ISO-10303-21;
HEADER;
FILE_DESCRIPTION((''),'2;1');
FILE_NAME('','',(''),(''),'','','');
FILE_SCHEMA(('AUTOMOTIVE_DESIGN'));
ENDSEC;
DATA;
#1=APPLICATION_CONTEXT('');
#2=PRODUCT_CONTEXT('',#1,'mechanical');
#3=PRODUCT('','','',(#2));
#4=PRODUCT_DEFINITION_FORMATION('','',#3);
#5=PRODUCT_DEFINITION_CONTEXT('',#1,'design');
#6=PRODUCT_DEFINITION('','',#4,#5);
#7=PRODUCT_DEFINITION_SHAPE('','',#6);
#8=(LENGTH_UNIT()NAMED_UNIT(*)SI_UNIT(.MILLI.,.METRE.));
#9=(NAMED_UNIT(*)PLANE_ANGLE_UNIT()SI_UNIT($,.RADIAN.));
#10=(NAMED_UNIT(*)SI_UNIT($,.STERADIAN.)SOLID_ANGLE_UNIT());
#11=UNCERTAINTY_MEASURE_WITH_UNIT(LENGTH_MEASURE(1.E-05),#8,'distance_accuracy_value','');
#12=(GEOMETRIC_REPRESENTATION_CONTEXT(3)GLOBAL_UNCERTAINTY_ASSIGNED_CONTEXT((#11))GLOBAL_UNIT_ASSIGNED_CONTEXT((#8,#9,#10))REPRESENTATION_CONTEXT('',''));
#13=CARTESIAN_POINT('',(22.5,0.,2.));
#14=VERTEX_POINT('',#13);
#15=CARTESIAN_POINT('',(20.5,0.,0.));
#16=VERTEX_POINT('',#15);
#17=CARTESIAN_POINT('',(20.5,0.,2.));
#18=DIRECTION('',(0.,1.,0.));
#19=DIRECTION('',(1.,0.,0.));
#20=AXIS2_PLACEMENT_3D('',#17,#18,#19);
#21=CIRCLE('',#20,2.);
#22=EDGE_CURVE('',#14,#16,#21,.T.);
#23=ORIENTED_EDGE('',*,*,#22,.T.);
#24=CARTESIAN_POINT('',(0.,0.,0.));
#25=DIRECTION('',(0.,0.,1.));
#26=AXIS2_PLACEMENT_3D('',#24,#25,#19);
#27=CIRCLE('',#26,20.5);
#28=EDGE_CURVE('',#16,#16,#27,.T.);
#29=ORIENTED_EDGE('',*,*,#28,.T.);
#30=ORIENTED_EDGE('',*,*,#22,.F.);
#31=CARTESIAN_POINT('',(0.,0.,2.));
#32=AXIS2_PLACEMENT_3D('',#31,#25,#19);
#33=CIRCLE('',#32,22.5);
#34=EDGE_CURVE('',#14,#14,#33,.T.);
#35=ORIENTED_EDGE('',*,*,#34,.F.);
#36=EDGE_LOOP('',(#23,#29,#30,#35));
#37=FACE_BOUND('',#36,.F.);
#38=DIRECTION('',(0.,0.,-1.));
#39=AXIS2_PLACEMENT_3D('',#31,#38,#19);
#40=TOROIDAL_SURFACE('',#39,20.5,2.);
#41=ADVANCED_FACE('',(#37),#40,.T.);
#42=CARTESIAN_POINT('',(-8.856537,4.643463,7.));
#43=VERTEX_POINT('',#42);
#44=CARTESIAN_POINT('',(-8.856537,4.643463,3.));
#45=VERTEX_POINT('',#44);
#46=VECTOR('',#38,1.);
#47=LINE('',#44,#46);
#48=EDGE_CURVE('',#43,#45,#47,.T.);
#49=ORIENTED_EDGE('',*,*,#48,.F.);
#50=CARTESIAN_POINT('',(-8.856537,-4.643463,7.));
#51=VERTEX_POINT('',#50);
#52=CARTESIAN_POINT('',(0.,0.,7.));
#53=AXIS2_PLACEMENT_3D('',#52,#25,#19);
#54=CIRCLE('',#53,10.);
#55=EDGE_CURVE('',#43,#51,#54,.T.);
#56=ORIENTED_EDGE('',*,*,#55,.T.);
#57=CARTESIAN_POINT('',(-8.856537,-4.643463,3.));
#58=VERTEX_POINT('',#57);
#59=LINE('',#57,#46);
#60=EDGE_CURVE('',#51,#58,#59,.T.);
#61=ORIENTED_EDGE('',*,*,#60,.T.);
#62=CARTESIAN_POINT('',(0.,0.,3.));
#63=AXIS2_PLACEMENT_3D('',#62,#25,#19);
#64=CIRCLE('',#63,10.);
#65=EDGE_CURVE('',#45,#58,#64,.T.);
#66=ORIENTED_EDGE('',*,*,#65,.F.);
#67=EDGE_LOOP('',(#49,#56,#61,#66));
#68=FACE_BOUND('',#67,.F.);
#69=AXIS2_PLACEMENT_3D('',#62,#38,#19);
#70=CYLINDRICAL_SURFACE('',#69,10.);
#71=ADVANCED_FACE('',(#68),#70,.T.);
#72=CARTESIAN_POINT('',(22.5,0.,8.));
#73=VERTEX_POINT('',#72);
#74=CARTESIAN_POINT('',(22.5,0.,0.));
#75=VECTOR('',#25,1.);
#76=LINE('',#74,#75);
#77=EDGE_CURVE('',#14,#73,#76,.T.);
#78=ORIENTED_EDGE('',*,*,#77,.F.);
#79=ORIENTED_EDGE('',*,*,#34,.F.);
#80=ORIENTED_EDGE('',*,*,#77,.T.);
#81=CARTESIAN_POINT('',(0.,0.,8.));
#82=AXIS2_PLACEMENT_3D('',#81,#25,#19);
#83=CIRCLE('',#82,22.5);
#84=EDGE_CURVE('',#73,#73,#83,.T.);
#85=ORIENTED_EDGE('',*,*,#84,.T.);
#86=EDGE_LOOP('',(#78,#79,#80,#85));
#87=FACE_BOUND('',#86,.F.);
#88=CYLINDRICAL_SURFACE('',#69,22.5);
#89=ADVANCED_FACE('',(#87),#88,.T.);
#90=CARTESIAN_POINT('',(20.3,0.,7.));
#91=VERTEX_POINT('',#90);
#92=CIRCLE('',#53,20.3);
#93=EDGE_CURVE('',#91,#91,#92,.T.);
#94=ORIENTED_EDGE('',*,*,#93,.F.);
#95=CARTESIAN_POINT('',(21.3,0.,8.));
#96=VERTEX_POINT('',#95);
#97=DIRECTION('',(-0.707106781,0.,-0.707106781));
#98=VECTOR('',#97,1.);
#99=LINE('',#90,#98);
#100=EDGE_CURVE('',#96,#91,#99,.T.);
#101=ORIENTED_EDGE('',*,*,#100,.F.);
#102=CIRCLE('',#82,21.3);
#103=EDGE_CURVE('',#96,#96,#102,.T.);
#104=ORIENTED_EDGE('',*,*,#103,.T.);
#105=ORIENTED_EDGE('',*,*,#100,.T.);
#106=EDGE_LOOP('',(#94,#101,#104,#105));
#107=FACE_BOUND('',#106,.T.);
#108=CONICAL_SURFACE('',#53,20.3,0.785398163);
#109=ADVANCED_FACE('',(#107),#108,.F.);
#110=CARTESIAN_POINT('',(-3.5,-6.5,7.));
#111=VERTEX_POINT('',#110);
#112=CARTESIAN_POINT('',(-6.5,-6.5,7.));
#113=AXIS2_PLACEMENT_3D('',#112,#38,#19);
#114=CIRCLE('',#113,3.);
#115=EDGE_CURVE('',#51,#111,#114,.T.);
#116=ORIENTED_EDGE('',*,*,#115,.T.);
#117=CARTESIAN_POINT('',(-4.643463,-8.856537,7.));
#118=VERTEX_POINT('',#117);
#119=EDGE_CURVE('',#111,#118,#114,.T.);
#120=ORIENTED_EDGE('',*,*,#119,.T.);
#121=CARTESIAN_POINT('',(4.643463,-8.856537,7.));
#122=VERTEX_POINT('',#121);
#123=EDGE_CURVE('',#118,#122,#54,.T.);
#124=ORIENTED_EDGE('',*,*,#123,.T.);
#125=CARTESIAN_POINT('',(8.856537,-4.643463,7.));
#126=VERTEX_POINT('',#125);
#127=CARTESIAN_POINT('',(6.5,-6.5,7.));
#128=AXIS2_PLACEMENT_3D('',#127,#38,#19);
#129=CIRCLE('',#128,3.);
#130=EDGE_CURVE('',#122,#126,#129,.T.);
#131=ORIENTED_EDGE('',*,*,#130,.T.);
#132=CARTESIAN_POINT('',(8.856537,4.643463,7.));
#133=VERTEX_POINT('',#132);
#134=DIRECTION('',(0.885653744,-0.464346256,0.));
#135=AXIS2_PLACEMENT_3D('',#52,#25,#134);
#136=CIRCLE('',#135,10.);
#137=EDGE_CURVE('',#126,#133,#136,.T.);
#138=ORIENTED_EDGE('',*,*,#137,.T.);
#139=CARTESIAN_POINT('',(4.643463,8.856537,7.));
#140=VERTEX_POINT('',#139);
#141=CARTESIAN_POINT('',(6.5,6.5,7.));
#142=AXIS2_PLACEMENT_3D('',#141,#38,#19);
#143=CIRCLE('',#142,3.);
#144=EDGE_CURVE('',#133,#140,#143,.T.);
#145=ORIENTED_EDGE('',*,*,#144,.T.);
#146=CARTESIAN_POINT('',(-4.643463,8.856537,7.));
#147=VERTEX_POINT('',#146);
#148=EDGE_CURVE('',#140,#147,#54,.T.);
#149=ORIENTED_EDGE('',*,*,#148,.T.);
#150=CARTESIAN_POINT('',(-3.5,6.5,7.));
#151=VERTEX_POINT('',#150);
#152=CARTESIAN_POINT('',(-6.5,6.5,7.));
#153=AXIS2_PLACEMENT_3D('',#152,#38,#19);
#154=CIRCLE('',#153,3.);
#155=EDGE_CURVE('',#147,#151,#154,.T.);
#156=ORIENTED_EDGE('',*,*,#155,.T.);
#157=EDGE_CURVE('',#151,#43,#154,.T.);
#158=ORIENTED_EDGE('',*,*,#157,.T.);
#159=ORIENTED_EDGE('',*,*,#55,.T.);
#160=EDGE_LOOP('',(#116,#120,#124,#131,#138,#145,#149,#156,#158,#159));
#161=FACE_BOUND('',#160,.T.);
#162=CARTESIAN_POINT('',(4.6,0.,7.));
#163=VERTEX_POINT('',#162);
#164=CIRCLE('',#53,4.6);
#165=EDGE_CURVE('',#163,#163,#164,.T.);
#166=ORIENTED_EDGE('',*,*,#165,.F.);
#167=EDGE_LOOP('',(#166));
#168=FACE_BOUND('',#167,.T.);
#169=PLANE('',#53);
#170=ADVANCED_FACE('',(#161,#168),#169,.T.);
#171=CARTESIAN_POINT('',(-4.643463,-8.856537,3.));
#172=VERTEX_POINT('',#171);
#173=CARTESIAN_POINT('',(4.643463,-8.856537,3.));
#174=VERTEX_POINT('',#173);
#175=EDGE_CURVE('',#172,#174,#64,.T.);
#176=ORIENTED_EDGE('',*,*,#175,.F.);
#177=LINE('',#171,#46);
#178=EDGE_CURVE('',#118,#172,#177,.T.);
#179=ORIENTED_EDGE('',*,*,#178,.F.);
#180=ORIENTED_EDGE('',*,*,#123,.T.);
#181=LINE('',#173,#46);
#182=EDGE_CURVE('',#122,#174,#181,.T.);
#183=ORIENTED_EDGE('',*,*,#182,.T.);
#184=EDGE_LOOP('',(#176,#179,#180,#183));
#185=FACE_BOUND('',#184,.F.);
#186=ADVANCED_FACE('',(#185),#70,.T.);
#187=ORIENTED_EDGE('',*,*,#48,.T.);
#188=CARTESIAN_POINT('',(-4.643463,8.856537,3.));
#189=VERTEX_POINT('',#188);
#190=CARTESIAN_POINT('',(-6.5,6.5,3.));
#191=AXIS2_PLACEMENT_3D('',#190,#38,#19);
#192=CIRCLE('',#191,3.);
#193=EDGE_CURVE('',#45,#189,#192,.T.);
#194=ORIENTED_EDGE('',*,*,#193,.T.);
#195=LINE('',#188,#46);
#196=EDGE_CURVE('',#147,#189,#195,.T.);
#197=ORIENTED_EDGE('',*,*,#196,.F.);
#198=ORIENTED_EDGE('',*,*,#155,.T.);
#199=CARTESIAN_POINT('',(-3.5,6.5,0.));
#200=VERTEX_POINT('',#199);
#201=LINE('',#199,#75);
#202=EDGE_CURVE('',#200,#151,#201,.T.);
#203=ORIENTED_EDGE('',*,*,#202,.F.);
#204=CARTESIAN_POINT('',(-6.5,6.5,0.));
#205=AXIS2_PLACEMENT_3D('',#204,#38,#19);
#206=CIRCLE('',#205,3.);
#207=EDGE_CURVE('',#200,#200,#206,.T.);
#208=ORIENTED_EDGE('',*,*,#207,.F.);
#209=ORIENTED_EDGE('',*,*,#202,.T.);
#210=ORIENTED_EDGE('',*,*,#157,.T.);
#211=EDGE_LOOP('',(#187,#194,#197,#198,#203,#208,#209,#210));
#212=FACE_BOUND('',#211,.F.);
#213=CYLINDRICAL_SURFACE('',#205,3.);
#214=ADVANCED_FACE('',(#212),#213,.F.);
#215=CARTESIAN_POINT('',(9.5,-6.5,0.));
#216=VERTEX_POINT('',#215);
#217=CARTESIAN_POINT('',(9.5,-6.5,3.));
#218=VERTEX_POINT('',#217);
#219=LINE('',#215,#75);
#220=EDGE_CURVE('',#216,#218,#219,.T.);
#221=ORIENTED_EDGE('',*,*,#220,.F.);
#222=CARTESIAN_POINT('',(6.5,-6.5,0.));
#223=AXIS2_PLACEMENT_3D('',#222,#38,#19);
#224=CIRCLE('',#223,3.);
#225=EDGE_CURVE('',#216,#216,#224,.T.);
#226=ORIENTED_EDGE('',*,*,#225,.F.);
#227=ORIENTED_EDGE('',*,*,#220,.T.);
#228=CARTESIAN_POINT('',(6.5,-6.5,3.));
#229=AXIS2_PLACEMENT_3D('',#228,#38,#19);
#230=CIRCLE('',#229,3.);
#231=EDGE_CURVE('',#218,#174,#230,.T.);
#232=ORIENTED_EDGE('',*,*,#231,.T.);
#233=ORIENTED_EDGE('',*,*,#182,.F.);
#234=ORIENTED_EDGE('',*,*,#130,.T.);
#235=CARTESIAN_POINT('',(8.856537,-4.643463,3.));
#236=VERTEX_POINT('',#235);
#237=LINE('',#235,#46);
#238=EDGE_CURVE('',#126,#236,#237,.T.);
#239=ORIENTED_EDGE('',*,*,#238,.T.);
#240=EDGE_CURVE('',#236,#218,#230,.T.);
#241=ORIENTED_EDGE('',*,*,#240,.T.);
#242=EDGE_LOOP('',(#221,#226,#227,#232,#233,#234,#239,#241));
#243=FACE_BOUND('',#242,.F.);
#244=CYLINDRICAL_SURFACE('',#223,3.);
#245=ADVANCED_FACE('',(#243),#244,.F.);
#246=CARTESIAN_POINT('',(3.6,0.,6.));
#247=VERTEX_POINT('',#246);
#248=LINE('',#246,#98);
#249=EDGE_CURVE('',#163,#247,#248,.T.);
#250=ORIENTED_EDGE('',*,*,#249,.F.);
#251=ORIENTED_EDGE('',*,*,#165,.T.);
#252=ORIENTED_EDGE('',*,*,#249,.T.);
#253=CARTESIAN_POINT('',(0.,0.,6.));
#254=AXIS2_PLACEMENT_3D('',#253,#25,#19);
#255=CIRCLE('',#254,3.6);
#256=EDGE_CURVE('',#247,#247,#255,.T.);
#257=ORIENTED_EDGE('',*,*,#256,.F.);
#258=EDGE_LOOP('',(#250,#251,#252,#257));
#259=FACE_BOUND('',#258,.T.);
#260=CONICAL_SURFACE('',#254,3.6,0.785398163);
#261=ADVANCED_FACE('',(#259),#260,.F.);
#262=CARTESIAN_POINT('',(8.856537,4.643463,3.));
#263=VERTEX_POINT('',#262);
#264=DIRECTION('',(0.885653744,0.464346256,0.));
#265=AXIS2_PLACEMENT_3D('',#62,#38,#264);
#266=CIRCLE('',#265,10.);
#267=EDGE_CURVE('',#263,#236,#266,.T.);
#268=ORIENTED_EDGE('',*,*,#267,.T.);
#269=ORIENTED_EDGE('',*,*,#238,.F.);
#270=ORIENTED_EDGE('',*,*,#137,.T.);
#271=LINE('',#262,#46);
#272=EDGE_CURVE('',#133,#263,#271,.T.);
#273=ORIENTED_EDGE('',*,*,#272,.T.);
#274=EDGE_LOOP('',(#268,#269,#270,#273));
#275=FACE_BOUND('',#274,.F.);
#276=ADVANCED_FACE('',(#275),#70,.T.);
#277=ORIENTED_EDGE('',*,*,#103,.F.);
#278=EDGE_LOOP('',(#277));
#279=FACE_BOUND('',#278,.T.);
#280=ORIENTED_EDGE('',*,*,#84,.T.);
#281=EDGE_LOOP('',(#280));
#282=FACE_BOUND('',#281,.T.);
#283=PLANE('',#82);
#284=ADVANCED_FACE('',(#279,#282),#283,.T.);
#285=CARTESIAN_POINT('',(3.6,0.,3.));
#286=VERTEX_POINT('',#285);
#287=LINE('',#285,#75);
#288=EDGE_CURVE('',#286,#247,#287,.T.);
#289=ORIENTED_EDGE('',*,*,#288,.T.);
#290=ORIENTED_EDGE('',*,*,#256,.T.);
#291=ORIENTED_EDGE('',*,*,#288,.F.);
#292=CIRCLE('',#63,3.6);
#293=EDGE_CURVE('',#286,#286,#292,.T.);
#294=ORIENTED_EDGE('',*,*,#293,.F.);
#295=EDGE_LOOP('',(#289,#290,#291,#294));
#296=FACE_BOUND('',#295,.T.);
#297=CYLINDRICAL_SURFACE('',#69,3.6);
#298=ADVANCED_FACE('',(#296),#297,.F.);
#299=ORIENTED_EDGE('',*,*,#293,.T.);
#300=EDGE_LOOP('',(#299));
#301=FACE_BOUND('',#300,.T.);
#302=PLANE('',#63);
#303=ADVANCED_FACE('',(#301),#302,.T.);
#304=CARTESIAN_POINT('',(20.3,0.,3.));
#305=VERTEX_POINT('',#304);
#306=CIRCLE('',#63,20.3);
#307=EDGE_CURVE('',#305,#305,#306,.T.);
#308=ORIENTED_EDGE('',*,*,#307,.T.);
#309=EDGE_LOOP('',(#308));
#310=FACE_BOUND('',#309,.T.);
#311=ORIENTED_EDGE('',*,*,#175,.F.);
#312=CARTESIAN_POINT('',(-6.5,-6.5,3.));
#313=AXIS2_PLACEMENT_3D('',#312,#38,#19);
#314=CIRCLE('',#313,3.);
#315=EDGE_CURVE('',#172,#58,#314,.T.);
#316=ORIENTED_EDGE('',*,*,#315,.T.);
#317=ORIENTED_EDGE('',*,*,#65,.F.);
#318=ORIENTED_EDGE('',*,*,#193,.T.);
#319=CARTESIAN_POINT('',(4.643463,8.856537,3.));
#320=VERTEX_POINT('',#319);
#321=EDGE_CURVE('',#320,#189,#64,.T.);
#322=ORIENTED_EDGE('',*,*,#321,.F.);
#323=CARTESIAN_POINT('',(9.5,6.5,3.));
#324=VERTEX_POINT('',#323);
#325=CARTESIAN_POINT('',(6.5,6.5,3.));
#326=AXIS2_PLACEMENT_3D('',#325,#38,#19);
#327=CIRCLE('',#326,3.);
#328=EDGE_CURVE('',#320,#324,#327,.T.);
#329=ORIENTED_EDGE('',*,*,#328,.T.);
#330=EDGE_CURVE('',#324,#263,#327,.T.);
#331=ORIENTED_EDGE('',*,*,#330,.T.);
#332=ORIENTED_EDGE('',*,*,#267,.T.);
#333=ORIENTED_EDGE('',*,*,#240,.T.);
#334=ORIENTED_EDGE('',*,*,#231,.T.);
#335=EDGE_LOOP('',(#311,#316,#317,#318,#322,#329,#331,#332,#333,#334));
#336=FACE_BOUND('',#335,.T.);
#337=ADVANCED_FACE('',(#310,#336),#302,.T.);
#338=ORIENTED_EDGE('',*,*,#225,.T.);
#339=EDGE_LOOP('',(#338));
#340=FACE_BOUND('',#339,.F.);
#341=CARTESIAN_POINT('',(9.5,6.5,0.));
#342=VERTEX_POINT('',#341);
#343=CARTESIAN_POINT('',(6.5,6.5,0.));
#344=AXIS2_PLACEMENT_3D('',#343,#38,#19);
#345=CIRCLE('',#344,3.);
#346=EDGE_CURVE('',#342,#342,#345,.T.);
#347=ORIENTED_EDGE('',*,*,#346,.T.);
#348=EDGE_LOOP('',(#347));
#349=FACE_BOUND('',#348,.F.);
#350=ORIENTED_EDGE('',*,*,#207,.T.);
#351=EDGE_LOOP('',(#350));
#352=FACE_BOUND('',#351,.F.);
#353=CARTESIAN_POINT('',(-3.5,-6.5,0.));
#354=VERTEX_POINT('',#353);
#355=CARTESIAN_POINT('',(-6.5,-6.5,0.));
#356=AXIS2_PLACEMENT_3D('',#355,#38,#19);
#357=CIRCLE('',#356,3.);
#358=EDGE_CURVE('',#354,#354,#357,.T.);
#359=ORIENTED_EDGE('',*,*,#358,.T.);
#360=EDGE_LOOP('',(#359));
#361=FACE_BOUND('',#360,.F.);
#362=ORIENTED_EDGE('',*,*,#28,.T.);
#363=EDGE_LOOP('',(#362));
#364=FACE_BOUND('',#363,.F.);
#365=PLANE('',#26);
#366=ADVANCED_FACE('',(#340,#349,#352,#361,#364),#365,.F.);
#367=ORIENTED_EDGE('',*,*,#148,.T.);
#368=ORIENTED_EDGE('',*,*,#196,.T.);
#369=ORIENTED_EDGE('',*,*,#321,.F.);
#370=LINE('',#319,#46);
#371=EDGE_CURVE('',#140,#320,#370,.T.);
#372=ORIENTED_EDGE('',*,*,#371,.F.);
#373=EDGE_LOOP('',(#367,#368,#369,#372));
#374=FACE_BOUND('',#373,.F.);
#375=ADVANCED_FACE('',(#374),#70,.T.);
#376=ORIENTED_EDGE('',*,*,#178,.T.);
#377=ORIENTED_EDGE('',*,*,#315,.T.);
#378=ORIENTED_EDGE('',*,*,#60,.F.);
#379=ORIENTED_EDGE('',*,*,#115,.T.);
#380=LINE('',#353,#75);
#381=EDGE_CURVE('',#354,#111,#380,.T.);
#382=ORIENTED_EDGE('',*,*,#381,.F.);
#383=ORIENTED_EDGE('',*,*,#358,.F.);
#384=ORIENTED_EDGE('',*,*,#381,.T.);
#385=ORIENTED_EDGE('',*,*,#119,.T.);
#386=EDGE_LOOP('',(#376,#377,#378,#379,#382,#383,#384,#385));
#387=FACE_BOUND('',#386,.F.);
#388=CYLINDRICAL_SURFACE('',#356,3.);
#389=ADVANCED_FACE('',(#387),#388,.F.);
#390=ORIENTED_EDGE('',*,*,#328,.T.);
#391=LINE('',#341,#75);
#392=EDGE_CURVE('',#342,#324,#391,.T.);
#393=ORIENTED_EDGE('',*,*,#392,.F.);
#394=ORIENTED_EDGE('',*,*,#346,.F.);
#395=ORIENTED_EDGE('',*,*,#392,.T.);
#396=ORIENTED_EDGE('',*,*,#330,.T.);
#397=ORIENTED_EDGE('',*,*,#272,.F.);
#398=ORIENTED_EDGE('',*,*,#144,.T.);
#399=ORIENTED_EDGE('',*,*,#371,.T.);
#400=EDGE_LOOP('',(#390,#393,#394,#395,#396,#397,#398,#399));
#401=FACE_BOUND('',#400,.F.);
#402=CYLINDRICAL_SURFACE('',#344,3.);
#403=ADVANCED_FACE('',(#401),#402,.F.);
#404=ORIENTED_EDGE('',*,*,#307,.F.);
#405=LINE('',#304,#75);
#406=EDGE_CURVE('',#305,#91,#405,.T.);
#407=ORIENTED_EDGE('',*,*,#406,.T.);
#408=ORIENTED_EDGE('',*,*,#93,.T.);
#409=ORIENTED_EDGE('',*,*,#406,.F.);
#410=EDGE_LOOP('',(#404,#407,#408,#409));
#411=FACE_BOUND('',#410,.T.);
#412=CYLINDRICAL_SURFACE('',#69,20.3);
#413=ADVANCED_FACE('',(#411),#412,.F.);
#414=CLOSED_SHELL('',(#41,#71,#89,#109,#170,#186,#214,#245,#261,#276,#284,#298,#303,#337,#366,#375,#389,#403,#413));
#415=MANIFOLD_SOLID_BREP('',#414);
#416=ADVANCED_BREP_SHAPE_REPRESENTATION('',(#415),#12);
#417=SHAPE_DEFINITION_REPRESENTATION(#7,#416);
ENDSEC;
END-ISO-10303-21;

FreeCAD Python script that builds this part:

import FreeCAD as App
import Part
import Sketcher

V = App.Vector
Q = App.Units.Quantity


def edges_at(feature, points):
    """Names of the edges that pass closest to the given points."""
    edges = feature.Shape.Edges
    near = lambda p: min(range(len(edges)), key=lambda i: edges[i].distToShape(Part.Vertex(*p))[0])
    return sorted({f"Edge{near(p) + 1}" for p in points})

doc = App.newDocument("Part")
params = doc.addObject("Spreadsheet::Sheet", "Params")
for row, (alias, value) in enumerate([
    ("sketch1_diameter", "45 mm"),
    ("pad1_length", "3 mm"),
    ("sketch2_diameter", "45 mm"),
    ("sketch2_diameter2", "40.6 mm"),
    ("pad2_length", "5 mm"),
    ("sketch3_diameter", "20 mm"),
    ("sketch3_diameter2", "7.2 mm"),
    ("pad3_length", "4 mm"),
    ("sketch4_diameter", "6 mm"),
    ("fillet_radius", "2 mm"),
    ("chamfer_size", "1 mm"),
    ("chamfer2_size", "1 mm"),
], start=1):
    params.set(f"A{row}", alias)
    params.set(f"B{row}", "=" + value)
    params.setAlias(f"B{row}", alias)

body = doc.addObject("PartDesign::Body", "Body")

sketch1 = doc.addObject("Sketcher::SketchObject", "Sketch")
body.addObject(sketch1)
sketch1.AttachmentSupport = (doc.XY_Plane, [""])
sketch1.MapMode = "FlatFace"
sketch1.addGeometry(Part.Circle(V(0, 0, 0), V(0, 0, 1), 22.5), False)
sketch1.addConstraint(Sketcher.Constraint("Coincident", 0, 3, -1, 1))
sketch1.addConstraint(Sketcher.Constraint("Diameter", 0, Q("45 mm")))
sketch1.setExpression("Constraints[1]", "Params.sketch1_diameter")
pad1 = doc.addObject("PartDesign::Pad", "Pad")
body.addObject(pad1)
pad1.Profile = sketch1
pad1.setExpression("Length", "Params.pad1_length")

sketch2 = doc.addObject("Sketcher::SketchObject", "Sketch001")
body.addObject(sketch2)
sketch2.AttachmentSupport = (doc.XY_Plane, [""])
sketch2.MapMode = "FlatFace"
sketch2.AttachmentOffset = App.Placement(V(0, 0, 3), App.Rotation())
sketch2.addGeometry(Part.Circle(V(0, 0, 0), V(0, 0, 1), 22.5), False)
sketch2.addGeometry(Part.Circle(V(0, 0, 0), V(0, 0, 1), 20.3), False)
sketch2.addConstraint(Sketcher.Constraint("Coincident", 0, 3, -1, 1))
sketch2.addConstraint(Sketcher.Constraint("Coincident", 1, 3, -1, 1))
sketch2.addConstraint(Sketcher.Constraint("Diameter", 0, Q("45 mm")))
sketch2.addConstraint(Sketcher.Constraint("Diameter", 1, Q("40.6 mm")))
sketch2.setExpression("Constraints[2]", "Params.sketch2_diameter")
sketch2.setExpression("Constraints[3]", "Params.sketch2_diameter2")
pad2 = doc.addObject("PartDesign::Pad", "Pad001")
body.addObject(pad2)
pad2.Profile = sketch2
pad2.setExpression("Length", "Params.pad2_length")

sketch3 = doc.addObject("Sketcher::SketchObject", "Sketch002")
body.addObject(sketch3)
sketch3.AttachmentSupport = (doc.XY_Plane, [""])
sketch3.MapMode = "FlatFace"
sketch3.AttachmentOffset = App.Placement(V(0, 0, 3), App.Rotation())
sketch3.addGeometry(Part.Circle(V(0, 0, 0), V(0, 0, 1), 10), False)
sketch3.addGeometry(Part.Circle(V(0, 0, 0), V(0, 0, 1), 3.6), False)
sketch3.addConstraint(Sketcher.Constraint("Coincident", 0, 3, -1, 1))
sketch3.addConstraint(Sketcher.Constraint("Coincident", 1, 3, -1, 1))
sketch3.addConstraint(Sketcher.Constraint("Diameter", 0, Q("20 mm")))
sketch3.addConstraint(Sketcher.Constraint("Diameter", 1, Q("7.2 mm")))
sketch3.setExpression("Constraints[2]", "Params.sketch3_diameter")
sketch3.setExpression("Constraints[3]", "Params.sketch3_diameter2")
pad3 = doc.addObject("PartDesign::Pad", "Pad002")
body.addObject(pad3)
pad3.Profile = sketch3
pad3.setExpression("Length", "Params.pad3_length")

sketch4 = doc.addObject("Sketcher::SketchObject", "Sketch003")
body.addObject(sketch4)
sketch4.AttachmentSupport = (doc.XY_Plane, [""])
sketch4.MapMode = "FlatFace"
sketch4.addGeometry(Part.Circle(V(-6.5, -6.5, 0), V(0, 0, 1), 3), False)
sketch4.addGeometry(Part.Circle(V(-6.5, 6.5, 0), V(0, 0, 1), 3), False)
sketch4.addGeometry(Part.Circle(V(6.5, 6.5, 0), V(0, 0, 1), 3), False)
sketch4.addGeometry(Part.Circle(V(6.5, -6.5, 0), V(0, 0, 1), 3), False)
sketch4.addConstraint(Sketcher.Constraint("Equal", 0, 1))
sketch4.addConstraint(Sketcher.Constraint("Equal", 1, 2))
sketch4.addConstraint(Sketcher.Constraint("Equal", 2, 3))
sketch4.addConstraint(Sketcher.Constraint("Symmetric", 0, 3, 2, 3, -1, 1))
sketch4.addConstraint(Sketcher.Constraint("Symmetric", 1, 3, 3, 3, -1, 1))
sketch4.addConstraint(Sketcher.Constraint("Symmetric", 1, 3, 2, 3, -2))
sketch4.addConstraint(Sketcher.Constraint("Diameter", 0, Q("6 mm")))
sketch4.addConstraint(Sketcher.Constraint("DistanceY", 0, 3, 1, 3, Q("13 mm")))
sketch4.addConstraint(Sketcher.Constraint("DistanceX", 1, 3, 2, 3, Q("13 mm")))
sketch4.setExpression("Constraints[6]", "Params.sketch4_diameter")
pocket1 = doc.addObject("PartDesign::Pocket", "Pocket")
body.addObject(pocket1)
pocket1.Profile = sketch4
pocket1.Type = "ThroughAll"
pocket1.Reversed = True
doc.recompute()

fillet = doc.addObject("PartDesign::Fillet", "Fillet")
body.addObject(fillet)
fillet.Base = (pocket1, edges_at(pocket1, [(-22.5, 0, 0)]))
fillet.setExpression("Radius", "Params.fillet_radius")
doc.recompute()

chamfer = doc.addObject("PartDesign::Chamfer", "Chamfer")
body.addObject(chamfer)
chamfer.Base = (fillet, edges_at(fillet, [(-20.3, 0, 8)]))
chamfer.setExpression("Size", "Params.chamfer_size")
doc.recompute()

chamfer2 = doc.addObject("PartDesign::Chamfer", "Chamfer001")
body.addObject(chamfer2)
chamfer2.Base = (chamfer, edges_at(chamfer, [(-3.6, 0, 7)]))
chamfer2.setExpression("Size", "Params.chamfer2_size")

doc.recompute()
